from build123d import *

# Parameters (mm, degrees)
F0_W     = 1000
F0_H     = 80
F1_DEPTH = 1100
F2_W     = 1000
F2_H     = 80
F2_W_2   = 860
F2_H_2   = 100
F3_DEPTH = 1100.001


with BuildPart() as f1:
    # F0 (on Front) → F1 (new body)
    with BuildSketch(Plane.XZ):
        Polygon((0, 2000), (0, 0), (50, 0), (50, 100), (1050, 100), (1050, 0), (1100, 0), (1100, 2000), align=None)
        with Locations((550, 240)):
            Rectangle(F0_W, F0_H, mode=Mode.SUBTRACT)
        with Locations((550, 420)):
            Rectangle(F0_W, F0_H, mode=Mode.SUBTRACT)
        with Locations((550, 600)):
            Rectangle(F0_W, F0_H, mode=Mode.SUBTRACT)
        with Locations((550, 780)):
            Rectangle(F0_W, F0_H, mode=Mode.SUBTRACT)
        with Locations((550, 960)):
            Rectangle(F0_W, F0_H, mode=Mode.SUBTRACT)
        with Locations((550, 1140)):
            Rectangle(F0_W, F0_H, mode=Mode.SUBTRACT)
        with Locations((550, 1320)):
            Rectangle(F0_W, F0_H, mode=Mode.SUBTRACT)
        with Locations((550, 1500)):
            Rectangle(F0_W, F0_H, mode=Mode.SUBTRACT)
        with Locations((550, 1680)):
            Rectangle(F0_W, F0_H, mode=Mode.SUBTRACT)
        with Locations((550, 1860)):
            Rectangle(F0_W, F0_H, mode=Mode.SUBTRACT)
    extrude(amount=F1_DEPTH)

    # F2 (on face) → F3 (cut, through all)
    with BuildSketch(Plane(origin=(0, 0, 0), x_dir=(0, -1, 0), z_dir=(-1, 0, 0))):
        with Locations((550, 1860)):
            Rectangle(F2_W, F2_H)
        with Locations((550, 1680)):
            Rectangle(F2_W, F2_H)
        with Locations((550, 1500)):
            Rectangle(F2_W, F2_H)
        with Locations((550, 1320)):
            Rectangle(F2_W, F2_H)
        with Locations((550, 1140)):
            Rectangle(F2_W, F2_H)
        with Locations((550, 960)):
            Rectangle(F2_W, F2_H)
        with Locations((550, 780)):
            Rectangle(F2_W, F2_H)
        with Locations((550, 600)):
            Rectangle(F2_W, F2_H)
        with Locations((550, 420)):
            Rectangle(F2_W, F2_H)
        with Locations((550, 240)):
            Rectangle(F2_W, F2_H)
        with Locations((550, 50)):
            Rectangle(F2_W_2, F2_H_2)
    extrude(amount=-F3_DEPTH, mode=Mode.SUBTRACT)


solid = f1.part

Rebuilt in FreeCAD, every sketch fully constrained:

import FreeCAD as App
import Part
import Sketcher
from FreeCAD import Vector

doc = App.newDocument("Part")
body = doc.addObject("PartDesign::Body", "Body")

# Sketch on XZ plane
sketch1 = body.newObject("Sketcher::SketchObject", "Sketch")
sketch1.AttachmentSupport = (doc.getObject("XZ_Plane"), [""])
sketch1.MapMode = "FlatFace"
sketch1.addGeometry([
    Part.LineSegment(Vector(0, 2000, 0), Vector(0, 0, 0)),  # 0
    Part.LineSegment(Vector(0, 0, 0), Vector(50, 0, 0)),  # 1
    Part.LineSegment(Vector(50, 0, 0), Vector(50, 100, 0)),  # 2
    Part.LineSegment(Vector(50, 100, 0), Vector(1050, 100, 0)),  # 3
    Part.LineSegment(Vector(1050, 100, 0), Vector(1050, 0, 0)),  # 4
    Part.LineSegment(Vector(1050, 0, 0), Vector(1100, 0, 0)),  # 5
    Part.LineSegment(Vector(1100, 0, 0), Vector(1100, 2000, 0)),  # 6
    Part.LineSegment(Vector(1100, 2000, 0), Vector(0, 2000, 0)),  # 7
    Part.LineSegment(Vector(1050, 200, 0), Vector(50, 200, 0)),  # 8
    Part.LineSegment(Vector(50, 200, 0), Vector(50, 280, 0)),  # 9
    Part.LineSegment(Vector(50, 280, 0), Vector(1050, 280, 0)),  # 10
    Part.LineSegment(Vector(1050, 280, 0), Vector(1050, 200, 0)),  # 11
    Part.LineSegment(Vector(1050, 380, 0), Vector(50, 380, 0)),  # 12
    Part.LineSegment(Vector(50, 380, 0), Vector(50, 460, 0)),  # 13
    Part.LineSegment(Vector(50, 460, 0), Vector(1050, 460, 0)),  # 14
    Part.LineSegment(Vector(1050, 460, 0), Vector(1050, 380, 0)),  # 15
    Part.LineSegment(Vector(1050, 560, 0), Vector(50, 560, 0)),  # 16
    Part.LineSegment(Vector(50, 560, 0), Vector(50, 640, 0)),  # 17
    Part.LineSegment(Vector(50, 640, 0), Vector(1050, 640, 0)),  # 18
    Part.LineSegment(Vector(1050, 640, 0), Vector(1050, 560, 0)),  # 19
    Part.LineSegment(Vector(1050, 740, 0), Vector(50, 740, 0)),  # 20
    Part.LineSegment(Vector(50, 740, 0), Vector(50, 820, 0)),  # 21
    Part.LineSegment(Vector(50, 820, 0), Vector(1050, 820, 0)),  # 22
    Part.LineSegment(Vector(1050, 820, 0), Vector(1050, 740, 0)),  # 23
    Part.LineSegment(Vector(1050, 920, 0), Vector(50, 920, 0)),  # 24
    Part.LineSegment(Vector(50, 920, 0), Vector(50, 1000, 0)),  # 25
    Part.LineSegment(Vector(50, 1000, 0), Vector(1050, 1000, 0)),  # 26
    Part.LineSegment(Vector(1050, 1000, 0), Vector(1050, 920, 0)),  # 27
    Part.LineSegment(Vector(1050, 1100, 0), Vector(50, 1100, 0)),  # 28
    Part.LineSegment(Vector(50, 1100, 0), Vector(50, 1180, 0)),  # 29
    Part.LineSegment(Vector(50, 1180, 0), Vector(1050, 1180, 0)),  # 30
    Part.LineSegment(Vector(1050, 1180, 0), Vector(1050, 1100, 0)),  # 31
    Part.LineSegment(Vector(1050, 1280, 0), Vector(50, 1280, 0)),  # 32
    Part.LineSegment(Vector(50, 1280, 0), Vector(50, 1360, 0)),  # 33
    Part.LineSegment(Vector(50, 1360, 0), Vector(1050, 1360, 0)),  # 34
    Part.LineSegment(Vector(1050, 1360, 0), Vector(1050, 1280, 0)),  # 35
    Part.LineSegment(Vector(1050, 1460, 0), Vector(50, 1460, 0)),  # 36
    Part.LineSegment(Vector(50, 1460, 0), Vector(50, 1540, 0)),  # 37
    Part.LineSegment(Vector(50, 1540, 0), Vector(1050, 1540, 0)),  # 38
    Part.LineSegment(Vector(1050, 1540, 0), Vector(1050, 1460, 0)),  # 39
    Part.LineSegment(Vector(1050, 1640, 0), Vector(50, 1640, 0)),  # 40
    Part.LineSegment(Vector(50, 1640, 0), Vector(50, 1720, 0)),  # 41
    Part.LineSegment(Vector(50, 1720, 0), Vector(1050, 1720, 0)),  # 42
    Part.LineSegment(Vector(1050, 1720, 0), Vector(1050, 1640, 0)),  # 43
    Part.LineSegment(Vector(1050, 1820, 0), Vector(50, 1820, 0)),  # 44
    Part.LineSegment(Vector(50, 1820, 0), Vector(50, 1900, 0)),  # 45
    Part.LineSegment(Vector(50, 1900, 0), Vector(1050, 1900, 0)),  # 46
    Part.LineSegment(Vector(1050, 1900, 0), Vector(1050, 1820, 0)),  # 47
], False)
sketch1.addConstraint([
    Sketcher.Constraint("Coincident", 0, 2, 1, 1),
    Sketcher.Constraint("Coincident", 1, 2, 2, 1),
    Sketcher.Constraint("Coincident", 2, 2, 3, 1),
    Sketcher.Constraint("Coincident", 3, 2, 4, 1),
    Sketcher.Constraint("Coincident", 4, 2, 5, 1),
    Sketcher.Constraint("Coincident", 5, 2, 6, 1),
    Sketcher.Constraint("Coincident", 6, 2, 7, 1),
    Sketcher.Constraint("Coincident", 7, 2, 0, 1),
    Sketcher.Constraint("Coincident", 8, 2, 9, 1),
    Sketcher.Constraint("Coincident", 9, 2, 10, 1),
    Sketcher.Constraint("Coincident", 10, 2, 11, 1),
    Sketcher.Constraint("Coincident", 11, 2, 8, 1),
    Sketcher.Constraint("Coincident", 12, 2, 13, 1),
    Sketcher.Constraint("Coincident", 13, 2, 14, 1),
    Sketcher.Constraint("Coincident", 14, 2, 15, 1),
    Sketcher.Constraint("Coincident", 15, 2, 12, 1),
    Sketcher.Constraint("Coincident", 16, 2, 17, 1),
    Sketcher.Constraint("Coincident", 17, 2, 18, 1),
    Sketcher.Constraint("Coincident", 18, 2, 19, 1),
    Sketcher.Constraint("Coincident", 19, 2, 16, 1),
    Sketcher.Constraint("Coincident", 20, 2, 21, 1),
    Sketcher.Constraint("Coincident", 21, 2, 22, 1),
    Sketcher.Constraint("Coincident", 22, 2, 23, 1),
    Sketcher.Constraint("Coincident", 23, 2, 20, 1),
    Sketcher.Constraint("Coincident", 24, 2, 25, 1),
    Sketcher.Constraint("Coincident", 25, 2, 26, 1),
    Sketcher.Constraint("Coincident", 26, 2, 27, 1),
    Sketcher.Constraint("Coincident", 27, 2, 24, 1),
    Sketcher.Constraint("Coincident", 28, 2, 29, 1),
    Sketcher.Constraint("Coincident", 29, 2, 30, 1),
    Sketcher.Constraint("Coincident", 30, 2, 31, 1),
    Sketcher.Constraint("Coincident", 31, 2, 28, 1),
    Sketcher.Constraint("Coincident", 32, 2, 33, 1),
    Sketcher.Constraint("Coincident", 33, 2, 34, 1),
    Sketcher.Constraint("Coincident", 34, 2, 35, 1),
    Sketcher.Constraint("Coincident", 35, 2, 32, 1),
    Sketcher.Constraint("Coincident", 36, 2, 37, 1),
    Sketcher.Constraint("Coincident", 37, 2, 38, 1),
    Sketcher.Constraint("Coincident", 38, 2, 39, 1),
    Sketcher.Constraint("Coincident", 39, 2, 36, 1),
    Sketcher.Constraint("Coincident", 40, 2, 41, 1),
    Sketcher.Constraint("Coincident", 41, 2, 42, 1),
    Sketcher.Constraint("Coincident", 42, 2, 43, 1),
    Sketcher.Constraint("Coincident", 43, 2, 40, 1),
    Sketcher.Constraint("Coincident", 44, 2, 45, 1),
    Sketcher.Constraint("Coincident", 45, 2, 46, 1),
    Sketcher.Constraint("Coincident", 46, 2, 47, 1),
    Sketcher.Constraint("Coincident", 47, 2, 44, 1),
    Sketcher.Constraint("Vertical", 0),
    Sketcher.Constraint("Horizontal", 1),
    Sketcher.Constraint("Vertical", 2),
    Sketcher.Constraint("Horizontal", 3),
    Sketcher.Constraint("Vertical", 4),
    Sketcher.Constraint("Horizontal", 5),
    Sketcher.Constraint("Vertical", 6),
    Sketcher.Constraint("Horizontal", 7),
    Sketcher.Constraint("Horizontal", 8),
    Sketcher.Constraint("Vertical", 9),
    Sketcher.Constraint("Horizontal", 10),
    Sketcher.Constraint("Vertical", 11),
    Sketcher.Constraint("Horizontal", 12),
    Sketcher.Constraint("Vertical", 13),
    Sketcher.Constraint("Horizontal", 14),
    Sketcher.Constraint("Vertical", 15),
    Sketcher.Constraint("Horizontal", 16),
    Sketcher.Constraint("Vertical", 17),
    Sketcher.Constraint("Horizontal", 18),
    Sketcher.Constraint("Vertical", 19),
    Sketcher.Constraint("Horizontal", 20),
    Sketcher.Constraint("Vertical", 21),
    Sketcher.Constraint("Horizontal", 22),
    Sketcher.Constraint("Vertical", 23),
    Sketcher.Constraint("Horizontal", 24),
    Sketcher.Constraint("Vertical", 25),
    Sketcher.Constraint("Horizontal", 26),
    Sketcher.Constraint("Vertical", 27),
    Sketcher.Constraint("Horizontal", 28),
    Sketcher.Constraint("Vertical", 29),
    Sketcher.Constraint("Horizontal", 30),
    Sketcher.Constraint("Vertical", 31),
    Sketcher.Constraint("Horizontal", 32),
    Sketcher.Constraint("Vertical", 33),
    Sketcher.Constraint("Horizontal", 34),
    Sketcher.Constraint("Vertical", 35),
    Sketcher.Constraint("Horizontal", 36),
    Sketcher.Constraint("Vertical", 37),
    Sketcher.Constraint("Horizontal", 38),
    Sketcher.Constraint("Vertical", 39),
    Sketcher.Constraint("Horizontal", 40),
    Sketcher.Constraint("Vertical", 41),
    Sketcher.Constraint("Horizontal", 42),
    Sketcher.Constraint("Vertical", 43),
    Sketcher.Constraint("Horizontal", 44),
    Sketcher.Constraint("Vertical", 45),
    Sketcher.Constraint("Horizontal", 46),
    Sketcher.Constraint("Vertical", 47),
    Sketcher.Constraint("Coincident", 0, 2, -1, 1),
    Sketcher.Constraint("PointOnObject", 4, 2, -1),
    Sketcher.Constraint("Vertical", 2, 2, 8, 2),
    Sketcher.Constraint("Vertical", 4, 2, 10, 2),
    Sketcher.Constraint("Vertical", 9, 2, 12, 2),
    Sketcher.Constraint("Vertical", 11, 2, 14, 2),
    Sketcher.Constraint("Vertical", 13, 2, 16, 2),
    Sketcher.Constraint("Vertical", 15, 2, 18, 2),
    Sketcher.Constraint("Vertical", 17, 2, 20, 2),
    Sketcher.Constraint("Vertical", 19, 2, 22, 2),
    Sketcher.Constraint("Vertical", 21, 2, 24, 2),
    Sketcher.Constraint("Vertical", 23, 2, 26, 2),
    Sketcher.Constraint("Vertical", 25, 2, 28, 2),
    Sketcher.Constraint("Vertical", 27, 2, 30, 2),
    Sketcher.Constraint("Vertical", 29, 2, 32, 2),
    Sketcher.Constraint("Vertical", 31, 2, 34, 2),
    Sketcher.Constraint("Vertical", 33, 2, 36, 2),
    Sketcher.Constraint("Vertical", 35, 2, 38, 2),
    Sketcher.Constraint("Vertical", 37, 2, 40, 2),
    Sketcher.Constraint("Vertical", 39, 2, 42, 2),
    Sketcher.Constraint("Vertical", 41, 2, 44, 2),
    Sketcher.Constraint("Vertical", 43, 2, 46, 2),
    Sketcher.Constraint("Equal", 1, 5),
    Sketcher.Constraint("Equal", 11, 13),
    Sketcher.Constraint("Equal", 15, 17),
    Sketcher.Constraint("Equal", 19, 21),
    Sketcher.Constraint("Equal", 23, 25),
    Sketcher.Constraint("Equal", 27, 29),
    Sketcher.Constraint("Equal", 31, 33),
    Sketcher.Constraint("Equal", 35, 37),
    Sketcher.Constraint("Equal", 39, 41),
    Sketcher.Constraint("Equal", 43, 45),
    Sketcher.Constraint("DistanceX", 1, 1, 1, 2, 50.0),
    Sketcher.Constraint("DistanceX", 3, 1, 3, 2, 1000.0),
    Sketcher.Constraint("DistanceY", 0, 2, 0, 1, 2000.0),
    Sketcher.Constraint("DistanceY", 2, 1, 2, 2, 100.0),
    Sketcher.Constraint("DistanceY", 9, 1, 9, 2, 80.0),
    Sketcher.Constraint("DistanceY", -1, 1, 8, 2, 200.0),
    Sketcher.Constraint("DistanceY", -1, 1, 12, 2, 380.0),
    Sketcher.Constraint("DistanceY", -1, 1, 16, 2, 560.0),
    Sketcher.Constraint("DistanceY", -1, 1, 20, 2, 740.0),
    Sketcher.Constraint("DistanceY", -1, 1, 24, 2, 920.0),
    Sketcher.Constraint("DistanceY", -1, 1, 28, 2, 1100.0),
    Sketcher.Constraint("DistanceY", -1, 1, 32, 2, 1280.0),
    Sketcher.Constraint("DistanceY", -1, 1, 36, 2, 1460.0),
    Sketcher.Constraint("DistanceY", -1, 1, 40, 2, 1640.0),
    Sketcher.Constraint("DistanceY", -1, 1, 44, 2, 1820.0),
])
pad1 = body.newObject("PartDesign::Pad", "Pad")
pad1.Profile = sketch1
pad1.Length = 1100

# Sketch on YZ plane
sketch2 = body.newObject("Sketcher::SketchObject", "Sketch001")
sketch2.AttachmentSupport = (doc.getObject("YZ_Plane"), [""])
sketch2.MapMode = "FlatFace"
sketch2.addGeometry([
    Part.LineSegment(Vector(-50, 1900, 0), Vector(-50, 1820, 0)),  # 0
    Part.LineSegment(Vector(-50, 1820, 0), Vector(-1050, 1820, 0)),  # 1
    Part.LineSegment(Vector(-1050, 1820, 0), Vector(-1050, 1900, 0)),  # 2
    Part.LineSegment(Vector(-1050, 1900, 0), Vector(-50, 1900, 0)),  # 3
    Part.LineSegment(Vector(-50, 1720, 0), Vector(-50, 1640, 0)),  # 4
    Part.LineSegment(Vector(-50, 1640, 0), Vector(-1050, 1640, 0)),  # 5
    Part.LineSegment(Vector(-1050, 1640, 0), Vector(-1050, 1720, 0)),  # 6
    Part.LineSegment(Vector(-1050, 1720, 0), Vector(-50, 1720, 0)),  # 7
    Part.LineSegment(Vector(-50, 1540, 0), Vector(-50, 1460, 0)),  # 8
    Part.LineSegment(Vector(-50, 1460, 0), Vector(-1050, 1460, 0)),  # 9
    Part.LineSegment(Vector(-1050, 1460, 0), Vector(-1050, 1540, 0)),  # 10
    Part.LineSegment(Vector(-1050, 1540, 0), Vector(-50, 1540, 0)),  # 11
    Part.LineSegment(Vector(-50, 1360, 0), Vector(-50, 1280, 0)),  # 12
    Part.LineSegment(Vector(-50, 1280, 0), Vector(-1050, 1280, 0)),  # 13
    Part.LineSegment(Vector(-1050, 1280, 0), Vector(-1050, 1360, 0)),  # 14
    Part.LineSegment(Vector(-1050, 1360, 0), Vector(-50, 1360, 0)),  # 15
    Part.LineSegment(Vector(-50, 1180, 0), Vector(-50, 1100, 0)),  # 16
    Part.LineSegment(Vector(-50, 1100, 0), Vector(-1050, 1100, 0)),  # 17
    Part.LineSegment(Vector(-1050, 1100, 0), Vector(-1050, 1180, 0)),  # 18
    Part.LineSegment(Vector(-1050, 1180, 0), Vector(-50, 1180, 0)),  # 19
    Part.LineSegment(Vector(-50, 1000, 0), Vector(-50, 920, 0)),  # 20
    Part.LineSegment(Vector(-50, 920, 0), Vector(-1050, 920, 0)),  # 21
    Part.LineSegment(Vector(-1050, 920, 0), Vector(-1050, 1000, 0)),  # 22
    Part.LineSegment(Vector(-1050, 1000, 0), Vector(-50, 1000, 0)),  # 23
    Part.LineSegment(Vector(-50, 820, 0), Vector(-50, 740, 0)),  # 24
    Part.LineSegment(Vector(-50, 740, 0), Vector(-1050, 740, 0)),  # 25
    Part.LineSegment(Vector(-1050, 740, 0), Vector(-1050, 820, 0)),  # 26
    Part.LineSegment(Vector(-1050, 820, 0), Vector(-50, 820, 0)),  # 27
    Part.LineSegment(Vector(-50, 640, 0), Vector(-50, 560, 0)),  # 28
    Part.LineSegment(Vector(-50, 560, 0), Vector(-1050, 560, 0)),  # 29
    Part.LineSegment(Vector(-1050, 560, 0), Vector(-1050, 640, 0)),  # 30
    Part.LineSegment(Vector(-1050, 640, 0), Vector(-50, 640, 0)),  # 31
    Part.LineSegment(Vector(-50, 460, 0), Vector(-50, 380, 0)),  # 32
    Part.LineSegment(Vector(-50, 380, 0), Vector(-1050, 380, 0)),  # 33
    Part.LineSegment(Vector(-1050, 380, 0), Vector(-1050, 460, 0)),  # 34
    Part.LineSegment(Vector(-1050, 460, 0), Vector(-50, 460, 0)),  # 35
    Part.LineSegment(Vector(-50, 280, 0), Vector(-50, 200, 0)),  # 36
    Part.LineSegment(Vector(-50, 200, 0), Vector(-1050, 200, 0)),  # 37
    Part.LineSegment(Vector(-1050, 200, 0), Vector(-1050, 280, 0)),  # 38
    Part.LineSegment(Vector(-1050, 280, 0), Vector(-50, 280, 0)),  # 39
    Part.LineSegment(Vector(-120, 100, 0), Vector(-120, 0, 0)),  # 40
    Part.LineSegment(Vector(-120, 0, 0), Vector(-980, 0, 0)),  # 41
    Part.LineSegment(Vector(-980, 0, 0), Vector(-980, 100, 0)),  # 42
    Part.LineSegment(Vector(-980, 100, 0), Vector(-120, 100, 0)),  # 43
], False)
sketch2.addConstraint([
    Sketcher.Constraint("Coincident", 0, 2, 1, 1),
    Sketcher.Constraint("Coincident", 1, 2, 2, 1),
    Sketcher.Constraint("Coincident", 2, 2, 3, 1),
    Sketcher.Constraint("Coincident", 3, 2, 0, 1),
    Sketcher.Constraint("Coincident", 4, 2, 5, 1),
    Sketcher.Constraint("Coincident", 5, 2, 6, 1),
    Sketcher.Constraint("Coincident", 6, 2, 7, 1),
    Sketcher.Constraint("Coincident", 7, 2, 4, 1),
    Sketcher.Constraint("Coincident", 8, 2, 9, 1),
    Sketcher.Constraint("Coincident", 9, 2, 10, 1),
    Sketcher.Constraint("Coincident", 10, 2, 11, 1),
    Sketcher.Constraint("Coincident", 11, 2, 8, 1),
    Sketcher.Constraint("Coincident", 12, 2, 13, 1),
    Sketcher.Constraint("Coincident", 13, 2, 14, 1),
    Sketcher.Constraint("Coincident", 14, 2, 15, 1),
    Sketcher.Constraint("Coincident", 15, 2, 12, 1),
    Sketcher.Constraint("Coincident", 16, 2, 17, 1),
    Sketcher.Constraint("Coincident", 17, 2, 18, 1),
    Sketcher.Constraint("Coincident", 18, 2, 19, 1),
    Sketcher.Constraint("Coincident", 19, 2, 16, 1),
    Sketcher.Constraint("Coincident", 20, 2, 21, 1),
    Sketcher.Constraint("Coincident", 21, 2, 22, 1),
    Sketcher.Constraint("Coincident", 22, 2, 23, 1),
    Sketcher.Constraint("Coincident", 23, 2, 20, 1),
    Sketcher.Constraint("Coincident", 24, 2, 25, 1),
    Sketcher.Constraint("Coincident", 25, 2, 26, 1),
    Sketcher.Constraint("Coincident", 26, 2, 27, 1),
    Sketcher.Constraint("Coincident", 27, 2, 24, 1),
    Sketcher.Constraint("Coincident", 28, 2, 29, 1),
    Sketcher.Constraint("Coincident", 29, 2, 30, 1),
    Sketcher.Constraint("Coincident", 30, 2, 31, 1),
    Sketcher.Constraint("Coincident", 31, 2, 28, 1),
    Sketcher.Constraint("Coincident", 32, 2, 33, 1),
    Sketcher.Constraint("Coincident", 33, 2, 34, 1),
    Sketcher.Constraint("Coincident", 34, 2, 35, 1),
    Sketcher.Constraint("Coincident", 35, 2, 32, 1),
    Sketcher.Constraint("Coincident", 36, 2, 37, 1),
    Sketcher.Constraint("Coincident", 37, 2, 38, 1),
    Sketcher.Constraint("Coincident", 38, 2, 39, 1),
    Sketcher.Constraint("Coincident", 39, 2, 36, 1),
    Sketcher.Constraint("Coincident", 40, 2, 41, 1),
    Sketcher.Constraint("Coincident", 41, 2, 42, 1),
    Sketcher.Constraint("Coincident", 42, 2, 43, 1),
    Sketcher.Constraint("Coincident", 43, 2, 40, 1),
    Sketcher.Constraint("Vertical", 0),
    Sketcher.Constraint("Horizontal", 1),
    Sketcher.Constraint("Vertical", 2),
    Sketcher.Constraint("Horizontal", 3),
    Sketcher.Constraint("Vertical", 4),
    Sketcher.Constraint("Horizontal", 5),
    Sketcher.Constraint("Vertical", 6),
    Sketcher.Constraint("Horizontal", 7),
    Sketcher.Constraint("Vertical", 8),
    Sketcher.Constraint("Horizontal", 9),
    Sketcher.Constraint("Vertical", 10),
    Sketcher.Constraint("Horizontal", 11),
    Sketcher.Constraint("Vertical", 12),
    Sketcher.Constraint("Horizontal", 13),
    Sketcher.Constraint("Vertical", 14),
    Sketcher.Constraint("Horizontal", 15),
    Sketcher.Constraint("Vertical", 16),
    Sketcher.Constraint("Horizontal", 17),
    Sketcher.Constraint("Vertical", 18),
    Sketcher.Constraint("Horizontal", 19),
    Sketcher.Constraint("Vertical", 20),
    Sketcher.Constraint("Horizontal", 21),
    Sketcher.Constraint("Vertical", 22),
    Sketcher.Constraint("Horizontal", 23),
    Sketcher.Constraint("Vertical", 24),
    Sketcher.Constraint("Horizontal", 25),
    Sketcher.Constraint("Vertical", 26),
    Sketcher.Constraint("Horizontal", 27),
    Sketcher.Constraint("Vertical", 28),
    Sketcher.Constraint("Horizontal", 29),
    Sketcher.Constraint("Vertical", 30),
    Sketcher.Constraint("Horizontal", 31),
    Sketcher.Constraint("Vertical", 32),
    Sketcher.Constraint("Horizontal", 33),
    Sketcher.Constraint("Vertical", 34),
    Sketcher.Constraint("Horizontal", 35),
    Sketcher.Constraint("Vertical", 36),
    Sketcher.Constraint("Horizontal", 37),
    Sketcher.Constraint("Vertical", 38),
    Sketcher.Constraint("Horizontal", 39),
    Sketcher.Constraint("Vertical", 40),
    Sketcher.Constraint("Horizontal", 41),
    Sketcher.Constraint("Vertical", 42),
    Sketcher.Constraint("Horizontal", 43),
    Sketcher.Constraint("PointOnObject", 40, 2, -1),
    Sketcher.Constraint("Vertical", 3, 2, 4, 2),
    Sketcher.Constraint("Vertical", 2, 2, 5, 2),
    Sketcher.Constraint("Vertical", 7, 2, 8, 2),
    Sketcher.Constraint("Vertical", 6, 2, 9, 2),
    Sketcher.Constraint("Vertical", 11, 2, 12, 2),
    Sketcher.Constraint("Vertical", 10, 2, 13, 2),
    Sketcher.Constraint("Vertical", 15, 2, 16, 2),
    Sketcher.Constraint("Vertical", 14, 2, 17, 2),
    Sketcher.Constraint("Vertical", 19, 2, 20, 2),
    Sketcher.Constraint("Vertical", 18, 2, 21, 2),
    Sketcher.Constraint("Vertical", 23, 2, 24, 2),
    Sketcher.Constraint("Vertical", 22, 2, 25, 2),
    Sketcher.Constraint("Vertical", 27, 2, 28, 2),
    Sketcher.Constraint("Vertical", 26, 2, 29, 2),
    Sketcher.Constraint("Vertical", 31, 2, 32, 2),
    Sketcher.Constraint("Vertical", 30, 2, 33, 2),
    Sketcher.Constraint("Vertical", 35, 2, 36, 2),
    Sketcher.Constraint("Vertical", 34, 2, 37, 2),
    Sketcher.Constraint("Equal", 2, 4),
    Sketcher.Constraint("Equal", 6, 8),
    Sketcher.Constraint("Equal", 10, 12),
    Sketcher.Constraint("Equal", 14, 16),
    Sketcher.Constraint("Equal", 18, 20),
    Sketcher.Constraint("Equal", 22, 24),
    Sketcher.Constraint("Equal", 26, 28),
    Sketcher.Constraint("Equal", 30, 32),
    Sketcher.Constraint("Equal", 34, 36),
    Sketcher.Constraint("DistanceX", 1, 2, 1, 1, 1000.0),
    Sketcher.Constraint("DistanceX", 41, 2, 41, 1, 860.0),
    Sketcher.Constraint("DistanceY", 0, 2, 0, 1, 80.0),
    Sketcher.Constraint("DistanceY", 40, 2, 40, 1, 100.0),
    Sketcher.Constraint("DistanceX", 0, 2, -1, 1, 50.0),
    Sketcher.Constraint("DistanceY", -1, 1, 0, 2, 1820.0),
    Sketcher.Constraint("DistanceY", -1, 1, 4, 2, 1640.0),
    Sketcher.Constraint("DistanceY", -1, 1, 8, 2, 1460.0),
    Sketcher.Constraint("DistanceY", -1, 1, 12, 2, 1280.0),
    Sketcher.Constraint("DistanceY", -1, 1, 16, 2, 1100.0),
    Sketcher.Constraint("DistanceY", -1, 1, 20, 2, 920.0),
    Sketcher.Constraint("DistanceY", -1, 1, 24, 2, 740.0),
    Sketcher.Constraint("DistanceY", -1, 1, 28, 2, 560.0),
    Sketcher.Constraint("DistanceY", -1, 1, 32, 2, 380.0),
    Sketcher.Constraint("DistanceY", -1, 1, 36, 2, 200.0),
    Sketcher.Constraint("DistanceX", 40, 2, -1, 1, 120.0),
])
pocket1 = body.newObject("PartDesign::Pocket", "Pocket")
pocket1.Profile = sketch2
pocket1.Type = "ThroughAll"
pocket1.Reversed = True

doc.recompute()
